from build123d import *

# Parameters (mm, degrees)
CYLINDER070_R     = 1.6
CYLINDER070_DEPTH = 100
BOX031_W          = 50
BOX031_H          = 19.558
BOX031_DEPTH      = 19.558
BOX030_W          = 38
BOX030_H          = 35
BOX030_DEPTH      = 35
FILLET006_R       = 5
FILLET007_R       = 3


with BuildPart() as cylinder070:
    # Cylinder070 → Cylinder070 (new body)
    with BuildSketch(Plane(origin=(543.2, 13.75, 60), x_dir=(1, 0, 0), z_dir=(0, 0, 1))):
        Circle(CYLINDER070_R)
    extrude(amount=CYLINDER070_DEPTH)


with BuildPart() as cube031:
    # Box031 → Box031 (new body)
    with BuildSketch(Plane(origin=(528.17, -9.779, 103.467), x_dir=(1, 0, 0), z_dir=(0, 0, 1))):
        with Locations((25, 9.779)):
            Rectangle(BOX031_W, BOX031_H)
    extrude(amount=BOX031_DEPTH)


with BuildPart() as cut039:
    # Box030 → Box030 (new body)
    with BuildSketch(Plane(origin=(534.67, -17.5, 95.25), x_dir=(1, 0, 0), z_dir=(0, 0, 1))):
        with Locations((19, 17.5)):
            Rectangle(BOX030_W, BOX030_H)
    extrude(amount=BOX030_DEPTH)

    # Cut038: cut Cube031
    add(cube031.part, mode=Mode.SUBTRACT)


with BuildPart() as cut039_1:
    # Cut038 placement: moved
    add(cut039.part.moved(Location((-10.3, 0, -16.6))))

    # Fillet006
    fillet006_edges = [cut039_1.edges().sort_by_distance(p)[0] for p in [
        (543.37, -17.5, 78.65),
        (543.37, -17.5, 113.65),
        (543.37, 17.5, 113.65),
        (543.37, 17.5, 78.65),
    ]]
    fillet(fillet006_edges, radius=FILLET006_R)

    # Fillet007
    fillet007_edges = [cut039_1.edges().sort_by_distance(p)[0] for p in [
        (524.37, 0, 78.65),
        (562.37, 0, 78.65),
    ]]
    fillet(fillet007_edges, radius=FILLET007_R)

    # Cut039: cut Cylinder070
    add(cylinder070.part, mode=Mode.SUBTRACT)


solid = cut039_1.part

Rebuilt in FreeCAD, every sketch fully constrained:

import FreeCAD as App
import Part
import Sketcher
from FreeCAD import Vector
Q = App.Units.Quantity


def edges_at(feature, points):
    """Names of the edges that pass closest to the given points."""
    edges = feature.Shape.Edges
    near = lambda p: min(range(len(edges)), key=lambda i: edges[i].distToShape(Part.Vertex(*p))[0])
    return sorted({f"Edge{near(p) + 1}" for p in points})


def add_polygon(sketch, points):
    """Adds a closed chain of lines whose ends are joined by coincident constraints."""
    first, n = sketch.GeometryCount, len(points)
    for a, b in zip(points, points[1:] + points[:1]):
        sketch.addGeometry(Part.LineSegment(App.Vector(*a, 0), App.Vector(*b, 0)), False)
    for i in range(n):
        sketch.addConstraint(Sketcher.Constraint("Coincident", first + i, 2, first + (i + 1) % n, 1))

doc = App.newDocument("Part")
body = doc.addObject("PartDesign::Body", "Body")

# Sketch on XY plane
sketch1 = doc.addObject("Sketcher::SketchObject", "Sketch")
body.addObject(sketch1)
sketch1.AttachmentSupport = (doc.XY_Plane, [""])
sketch1.MapMode = "FlatFace"
sketch1.AttachmentOffset = App.Placement(Vector(0, 0, 60), App.Rotation())
sketch1.addGeometry(Part.Circle(Vector(543.2, 13.8, 0), Vector(0, 0, 1), 1.6), False)
sketch1.addConstraint([
    Sketcher.Constraint("Diameter", 0, Q("3.2 mm")),
    Sketcher.Constraint("DistanceX", -1, 1, 0, 3, Q("543.2 mm")),
    Sketcher.Constraint("DistanceY", -1, 1, 0, 3, Q("13.75 mm")),
])
pad1 = doc.addObject("PartDesign::Pad", "Pad")
body.addObject(pad1)
pad1.Profile = sketch1
pad1.Length = 100
body2 = doc.addObject("PartDesign::Body", "Body001")

# Sketch on XY plane
sketch2 = doc.addObject("Sketcher::SketchObject", "Sketch001")
body2.addObject(sketch2)
sketch2.AttachmentSupport = (doc.getObject("XY_Plane001"), [""])
sketch2.MapMode = "FlatFace"
sketch2.AttachmentOffset = App.Placement(Vector(0, 0, 103.467), App.Rotation())
add_polygon(sketch2, [(528, 10), (528, -10), (578, -10), (578, 10)])  # lines 0-3
sketch2.addConstraint([
    Sketcher.Constraint("Vertical", 0),
    Sketcher.Constraint("Horizontal", 1),
    Sketcher.Constraint("Vertical", 2),
    Sketcher.Constraint("Horizontal", 3),
    Sketcher.Constraint("DistanceX", 1, 1, 1, 2, Q("50 mm")),
    Sketcher.Constraint("DistanceY", 0, 2, 0, 1, Q("19.558 mm")),
    Sketcher.Constraint("DistanceX", -1, 1, 0, 2, Q("528.17 mm")),
    Sketcher.Constraint("DistanceY", 0, 2, -1, 1, Q("9.779 mm")),
])
pad2 = doc.addObject("PartDesign::Pad", "Pad001")
body2.addObject(pad2)
pad2.Profile = sketch2
pad2.Length = 19.558
body3 = doc.addObject("PartDesign::Body", "Body002")

# Sketch on XY plane
sketch3 = doc.addObject("Sketcher::SketchObject", "Sketch002")
body3.addObject(sketch3)
sketch3.AttachmentSupport = (doc.getObject("XY_Plane002"), [""])
sketch3.MapMode = "FlatFace"
sketch3.AttachmentOffset = App.Placement(Vector(0, 0, 95.25), App.Rotation())
add_polygon(sketch3, [(535, 18), (535, -18), (573, -18), (573, 18)])  # lines 0-3
sketch3.addConstraint([
    Sketcher.Constraint("Vertical", 0),
    Sketcher.Constraint("Horizontal", 1),
    Sketcher.Constraint("Vertical", 2),
    Sketcher.Constraint("Horizontal", 3),
    Sketcher.Constraint("DistanceX", 1, 1, 1, 2, Q("38 mm")),
    Sketcher.Constraint("DistanceY", 0, 2, 0, 1, Q("35 mm")),
    Sketcher.Constraint("DistanceY", 0, 2, -1, 1, Q("17.5 mm")),
    Sketcher.Constraint("DistanceX", -1, 1, 0, 2, Q("534.67 mm")),
])
pad3 = doc.addObject("PartDesign::Pad", "Pad002")
body3.addObject(pad3)
pad3.Profile = sketch3
pad3.Length = 35
doc.recompute()

boolean = doc.addObject("PartDesign::Boolean", "Boolean")
body3.addObject(boolean)
boolean.Type = "Cut"
boolean.addObjects([body2])
body4 = doc.addObject("PartDesign::Body", "Body003")
doc.recompute()

body3.Placement = App.Placement(Vector(-10.3, 0, -16.6), App.Rotation(Vector(0, 0, 1), 0))
boolean2 = doc.addObject("PartDesign::Boolean", "Boolean001")
body4.addObject(boolean2)
boolean2.Type = "Fuse"
boolean2.addObjects([body3])
doc.recompute()

fillet = doc.addObject("PartDesign::Fillet", "Fillet")
body4.addObject(fillet)
fillet.Base = (boolean2, edges_at(boolean2, [
    (543.37, -17.5, 78.65),
    (543.37, -17.5, 113.65),
    (543.37, 17.5, 113.65),
    (543.37, 17.5, 78.65),
]))
fillet.Radius = 5
doc.recompute()

fillet2 = doc.addObject("PartDesign::Fillet", "Fillet001")
body4.addObject(fillet2)
fillet2.Base = (fillet, edges_at(fillet, [(524.37, 0, 78.65), (562.37, 0, 78.65)]))
fillet2.Radius = 3
doc.recompute()

boolean3 = doc.addObject("PartDesign::Boolean", "Boolean002")
body4.addObject(boolean3)
boolean3.Type = "Cut"
boolean3.addObjects([body])

doc.recompute()
